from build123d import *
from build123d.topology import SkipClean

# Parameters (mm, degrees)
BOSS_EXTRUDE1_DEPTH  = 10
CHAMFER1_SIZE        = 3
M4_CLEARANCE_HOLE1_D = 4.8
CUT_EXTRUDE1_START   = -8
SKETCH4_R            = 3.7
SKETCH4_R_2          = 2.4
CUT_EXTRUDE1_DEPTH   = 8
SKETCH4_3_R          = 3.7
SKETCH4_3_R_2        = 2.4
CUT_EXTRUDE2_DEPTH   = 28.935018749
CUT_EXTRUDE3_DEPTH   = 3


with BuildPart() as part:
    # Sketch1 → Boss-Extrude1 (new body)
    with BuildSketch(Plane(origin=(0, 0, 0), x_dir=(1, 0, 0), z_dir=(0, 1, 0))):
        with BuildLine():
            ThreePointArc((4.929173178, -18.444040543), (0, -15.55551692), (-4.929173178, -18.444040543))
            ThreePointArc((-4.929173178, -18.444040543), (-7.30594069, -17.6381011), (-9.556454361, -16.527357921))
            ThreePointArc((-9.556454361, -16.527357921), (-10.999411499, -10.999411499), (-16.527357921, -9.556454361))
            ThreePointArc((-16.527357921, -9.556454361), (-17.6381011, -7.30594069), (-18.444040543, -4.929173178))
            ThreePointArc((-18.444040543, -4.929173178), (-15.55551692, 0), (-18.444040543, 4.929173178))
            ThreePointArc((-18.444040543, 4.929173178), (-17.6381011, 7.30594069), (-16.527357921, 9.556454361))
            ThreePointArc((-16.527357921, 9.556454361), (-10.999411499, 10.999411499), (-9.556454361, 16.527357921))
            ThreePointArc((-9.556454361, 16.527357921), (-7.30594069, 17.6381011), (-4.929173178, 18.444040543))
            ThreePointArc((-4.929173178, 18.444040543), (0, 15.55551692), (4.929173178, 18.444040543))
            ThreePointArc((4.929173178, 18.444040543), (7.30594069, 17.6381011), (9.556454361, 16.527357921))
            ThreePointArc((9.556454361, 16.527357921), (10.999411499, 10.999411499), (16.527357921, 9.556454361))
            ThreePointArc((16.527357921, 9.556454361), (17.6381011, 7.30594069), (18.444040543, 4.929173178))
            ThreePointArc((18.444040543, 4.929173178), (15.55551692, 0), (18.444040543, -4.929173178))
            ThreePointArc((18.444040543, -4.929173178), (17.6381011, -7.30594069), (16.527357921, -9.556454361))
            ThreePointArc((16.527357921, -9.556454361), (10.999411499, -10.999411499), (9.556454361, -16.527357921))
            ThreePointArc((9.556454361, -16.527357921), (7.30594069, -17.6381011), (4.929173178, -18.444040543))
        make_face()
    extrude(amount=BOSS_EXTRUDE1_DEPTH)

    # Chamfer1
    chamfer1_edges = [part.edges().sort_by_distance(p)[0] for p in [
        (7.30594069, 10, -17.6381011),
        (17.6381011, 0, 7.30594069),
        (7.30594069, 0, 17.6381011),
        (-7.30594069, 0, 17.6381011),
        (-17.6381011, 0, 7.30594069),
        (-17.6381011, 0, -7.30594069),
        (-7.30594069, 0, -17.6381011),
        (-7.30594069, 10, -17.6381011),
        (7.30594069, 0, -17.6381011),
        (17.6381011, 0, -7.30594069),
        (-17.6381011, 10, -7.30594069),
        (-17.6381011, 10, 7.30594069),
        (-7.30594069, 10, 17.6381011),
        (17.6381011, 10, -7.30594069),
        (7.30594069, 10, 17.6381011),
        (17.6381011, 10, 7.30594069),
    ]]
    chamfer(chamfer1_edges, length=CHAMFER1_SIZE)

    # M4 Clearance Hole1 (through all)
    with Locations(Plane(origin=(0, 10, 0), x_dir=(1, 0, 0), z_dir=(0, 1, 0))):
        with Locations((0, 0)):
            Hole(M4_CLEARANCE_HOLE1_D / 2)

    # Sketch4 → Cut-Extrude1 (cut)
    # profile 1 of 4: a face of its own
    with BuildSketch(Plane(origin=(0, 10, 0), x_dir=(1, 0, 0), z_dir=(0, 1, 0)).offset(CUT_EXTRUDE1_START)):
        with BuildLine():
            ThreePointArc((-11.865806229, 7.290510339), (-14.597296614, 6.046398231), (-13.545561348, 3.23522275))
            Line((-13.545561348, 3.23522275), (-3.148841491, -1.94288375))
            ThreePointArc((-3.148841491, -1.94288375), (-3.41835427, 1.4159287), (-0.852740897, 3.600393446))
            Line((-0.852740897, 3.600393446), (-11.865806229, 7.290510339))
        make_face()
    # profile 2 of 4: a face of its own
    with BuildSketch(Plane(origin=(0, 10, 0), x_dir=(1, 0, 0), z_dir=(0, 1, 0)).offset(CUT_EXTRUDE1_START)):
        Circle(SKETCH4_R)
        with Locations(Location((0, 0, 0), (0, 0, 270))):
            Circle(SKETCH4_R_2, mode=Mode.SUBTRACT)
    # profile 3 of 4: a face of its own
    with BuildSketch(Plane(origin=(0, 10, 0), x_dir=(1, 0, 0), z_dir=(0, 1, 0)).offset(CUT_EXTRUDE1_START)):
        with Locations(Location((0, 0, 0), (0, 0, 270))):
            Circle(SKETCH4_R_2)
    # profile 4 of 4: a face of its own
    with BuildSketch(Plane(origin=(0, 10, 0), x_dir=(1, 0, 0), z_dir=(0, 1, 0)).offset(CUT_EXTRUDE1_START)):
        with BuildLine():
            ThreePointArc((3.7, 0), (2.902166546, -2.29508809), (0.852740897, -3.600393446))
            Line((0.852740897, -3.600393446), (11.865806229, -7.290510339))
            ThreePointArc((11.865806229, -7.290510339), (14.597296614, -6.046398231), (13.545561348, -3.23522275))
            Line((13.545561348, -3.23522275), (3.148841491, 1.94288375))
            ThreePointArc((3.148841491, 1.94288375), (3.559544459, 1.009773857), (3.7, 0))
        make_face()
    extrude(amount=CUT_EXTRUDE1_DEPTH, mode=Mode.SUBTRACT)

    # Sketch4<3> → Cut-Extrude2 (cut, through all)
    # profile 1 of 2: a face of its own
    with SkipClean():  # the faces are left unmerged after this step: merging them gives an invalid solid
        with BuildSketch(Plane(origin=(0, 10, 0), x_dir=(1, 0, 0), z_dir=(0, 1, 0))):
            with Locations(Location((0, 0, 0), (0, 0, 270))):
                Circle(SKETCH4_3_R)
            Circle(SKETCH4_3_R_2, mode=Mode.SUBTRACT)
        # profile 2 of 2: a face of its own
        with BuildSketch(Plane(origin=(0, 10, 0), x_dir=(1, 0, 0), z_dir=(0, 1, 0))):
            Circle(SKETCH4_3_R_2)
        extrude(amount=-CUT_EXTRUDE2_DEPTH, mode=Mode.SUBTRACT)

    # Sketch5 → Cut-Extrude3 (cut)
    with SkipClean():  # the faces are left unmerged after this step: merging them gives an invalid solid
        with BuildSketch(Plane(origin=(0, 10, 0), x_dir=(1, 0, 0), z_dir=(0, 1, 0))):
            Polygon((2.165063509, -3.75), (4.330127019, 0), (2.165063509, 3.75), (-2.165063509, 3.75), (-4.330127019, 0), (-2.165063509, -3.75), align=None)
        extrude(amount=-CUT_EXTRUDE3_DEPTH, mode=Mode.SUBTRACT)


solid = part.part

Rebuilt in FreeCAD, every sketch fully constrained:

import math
import FreeCAD as App
import Part
import Sketcher
from FreeCAD import Vector
Q = App.Units.Quantity


def edges_at(feature, points):
    """Names of the edges that pass closest to the given points."""
    edges = feature.Shape.Edges
    near = lambda p: min(range(len(edges)), key=lambda i: edges[i].distToShape(Part.Vertex(*p))[0])
    return sorted({f"Edge{near(p) + 1}" for p in points})


def add_polygon(sketch, points):
    """Adds a closed chain of lines whose ends are joined by coincident constraints."""
    first, n = sketch.GeometryCount, len(points)
    for a, b in zip(points, points[1:] + points[:1]):
        sketch.addGeometry(Part.LineSegment(App.Vector(*a, 0), App.Vector(*b, 0)), False)
    for i in range(n):
        sketch.addConstraint(Sketcher.Constraint("Coincident", first + i, 2, first + (i + 1) % n, 1))

doc = App.newDocument("Part")
body = doc.addObject("PartDesign::Body", "Body")

sketch1 = body.newObject("Sketcher::SketchObject", "Sketch")
sketch1.AttachmentSupport = (doc.getObject("XZ_Plane"), [""])
sketch1.MapMode = "FlatFace"
sketch1.addGeometry(Part.ArcOfCircle(Part.Circle(Vector(0, 21, 0), Vector(0, 0, 1), 6), math.radians(-151), math.radians(-29)), False)
sketch1.addGeometry(Part.ArcOfCircle(Part.Circle(Vector(0, 0, 0), Vector(0, 0, 1), 19), math.radians(59.96), math.radians(75.04)), False)
sketch1.addGeometry(Part.ArcOfCircle(Part.Circle(Vector(15, 15, 0), Vector(0, 0, 1), 6), math.radians(164), math.radians(286)), False)
sketch1.addGeometry(Part.ArcOfCircle(Part.Circle(Vector(0, 0, 0), Vector(0, 0, 1), 19), math.radians(14.96), math.radians(30.04)), False)
sketch1.addGeometry(Part.ArcOfCircle(Part.Circle(Vector(21, 0, 0), Vector(0, 0, 1), 6), math.radians(119), math.radians(241)), False)
sketch1.addGeometry(Part.ArcOfCircle(Part.Circle(Vector(0, 0, 0), Vector(0, 0, 1), 19), math.radians(-30.04), math.radians(-14.96)), False)
sketch1.addGeometry(Part.ArcOfCircle(Part.Circle(Vector(15, -15, 0), Vector(0, 0, 1), 6), math.radians(74), math.radians(196)), False)
sketch1.addGeometry(Part.ArcOfCircle(Part.Circle(Vector(0, 0, 0), Vector(0, 0, 1), 19), math.radians(-75.04), math.radians(-59.96)), False)
sketch1.addGeometry(Part.ArcOfCircle(Part.Circle(Vector(0, -21, 0), Vector(0, 0, 1), 6), math.radians(29), math.radians(151)), False)
sketch1.addGeometry(Part.ArcOfCircle(Part.Circle(Vector(0, 0, 0), Vector(0, 0, 1), 19), math.radians(-120.04), math.radians(-104.96)), False)
sketch1.addGeometry(Part.ArcOfCircle(Part.Circle(Vector(-15, -15, 0), Vector(0, 0, 1), 6), math.radians(-16), math.radians(106)), False)
sketch1.addGeometry(Part.ArcOfCircle(Part.Circle(Vector(0, 0, 0), Vector(0, 0, 1), 19), math.radians(-165.04), math.radians(-149.96)), False)
sketch1.addGeometry(Part.ArcOfCircle(Part.Circle(Vector(-21, 0, 0), Vector(0, 0, 1), 6), math.radians(-61), math.radians(61)), False)
sketch1.addGeometry(Part.ArcOfCircle(Part.Circle(Vector(0, 0, 0), Vector(0, 0, 1), 19), math.radians(149.96), math.radians(165.04)), False)
sketch1.addGeometry(Part.ArcOfCircle(Part.Circle(Vector(-15, 15, 0), Vector(0, 0, 1), 6), math.radians(-106), math.radians(16)), False)
sketch1.addGeometry(Part.ArcOfCircle(Part.Circle(Vector(0, 0, 0), Vector(0, 0, 1), 19), math.radians(104.96), math.radians(120.04)), False)
sketch1.addConstraint(Sketcher.Constraint("Coincident", 0, 2, 1, 2))
sketch1.addConstraint(Sketcher.Constraint("Coincident", 1, 1, 2, 1))
sketch1.addConstraint(Sketcher.Constraint("Coincident", 2, 2, 3, 2))
sketch1.addConstraint(Sketcher.Constraint("Coincident", 3, 1, 4, 1))
sketch1.addConstraint(Sketcher.Constraint("Coincident", 4, 2, 5, 2))
sketch1.addConstraint(Sketcher.Constraint("Coincident", 5, 1, 6, 1))
sketch1.addConstraint(Sketcher.Constraint("Coincident", 6, 2, 7, 2))
sketch1.addConstraint(Sketcher.Constraint("Coincident", 7, 1, 8, 1))
sketch1.addConstraint(Sketcher.Constraint("Coincident", 8, 2, 9, 2))
sketch1.addConstraint(Sketcher.Constraint("Coincident", 9, 1, 10, 1))
sketch1.addConstraint(Sketcher.Constraint("Coincident", 10, 2, 11, 2))
sketch1.addConstraint(Sketcher.Constraint("Coincident", 11, 1, 12, 1))
sketch1.addConstraint(Sketcher.Constraint("Coincident", 12, 2, 13, 2))
sketch1.addConstraint(Sketcher.Constraint("Coincident", 13, 1, 14, 1))
sketch1.addConstraint(Sketcher.Constraint("Coincident", 14, 2, 15, 2))
sketch1.addConstraint(Sketcher.Constraint("Coincident", 15, 1, 0, 1))
sketch1.addConstraint(Sketcher.Constraint("Coincident", 1, 3, -1, 1))
sketch1.addConstraint(Sketcher.Constraint("Coincident", 3, 3, -1, 1))
sketch1.addConstraint(Sketcher.Constraint("Coincident", 5, 3, -1, 1))
sketch1.addConstraint(Sketcher.Constraint("Coincident", 7, 3, -1, 1))
sketch1.addConstraint(Sketcher.Constraint("Coincident", 9, 3, -1, 1))
sketch1.addConstraint(Sketcher.Constraint("Coincident", 11, 3, -1, 1))
sketch1.addConstraint(Sketcher.Constraint("Coincident", 13, 3, -1, 1))
sketch1.addConstraint(Sketcher.Constraint("Coincident", 15, 3, -1, 1))
sketch1.addConstraint(Sketcher.Constraint("Equal", 0, 2))
sketch1.addConstraint(Sketcher.Constraint("Equal", 1, 3))
sketch1.addConstraint(Sketcher.Constraint("Equal", 2, 4))
sketch1.addConstraint(Sketcher.Constraint("Equal", 3, 5))
sketch1.addConstraint(Sketcher.Constraint("Equal", 4, 6))
sketch1.addConstraint(Sketcher.Constraint("Equal", 5, 7))
sketch1.addConstraint(Sketcher.Constraint("Equal", 6, 8))
sketch1.addConstraint(Sketcher.Constraint("Equal", 7, 9))
sketch1.addConstraint(Sketcher.Constraint("Equal", 8, 10))
sketch1.addConstraint(Sketcher.Constraint("Equal", 9, 11))
sketch1.addConstraint(Sketcher.Constraint("Equal", 10, 12))
sketch1.addConstraint(Sketcher.Constraint("Equal", 11, 13))
sketch1.addConstraint(Sketcher.Constraint("Equal", 12, 14))
sketch1.addConstraint(Sketcher.Constraint("Equal", 13, 15))
sketch1.addConstraint(Sketcher.Constraint("Symmetric", 0, 3, 8, 3, -1, 1))
sketch1.addConstraint(Sketcher.Constraint("Symmetric", 2, 3, 10, 3, -1, 1))
sketch1.addConstraint(Sketcher.Constraint("Symmetric", 4, 3, 12, 3, -1, 1))
sketch1.addConstraint(Sketcher.Constraint("Symmetric", 6, 3, 14, 3, -1, 1))
sketch1.addConstraint(Sketcher.Constraint("Symmetric", 6, 3, 10, 3, -2))
sketch1.addConstraint(Sketcher.Constraint("PointOnObject", 0, 3, -2))
sketch1.addConstraint(Sketcher.Constraint("PointOnObject", 4, 3, -1))
sketch1.addConstraint(Sketcher.Constraint("Radius", 0, Q("5.65 mm")))
sketch1.addConstraint(Sketcher.Constraint("Radius", 1, Q("19.091343 mm")))
sketch1.addConstraint(Sketcher.Constraint("DistanceY", -1, 1, 0, 2, Q("18.444041 mm")))
sketch1.addConstraint(Sketcher.Constraint("DistanceX", -1, 1, 3, 1, Q("18.444041 mm")))
sketch1.addConstraint(Sketcher.Constraint("DistanceY", 6, 3, 2, 3, Q("29.98913 mm")))
sketch1.addConstraint(Sketcher.Constraint("DistanceX", 0, 2, 2, 3, Q("10.065392 mm")))
pad1 = body.newObject("PartDesign::Pad", "Pad")
pad1.Profile = sketch1
pad1.Length = 10
pad1.Reversed = True
doc.recompute()

chamfer = body.newObject("PartDesign::Chamfer", "Chamfer")
chamfer.Base = (pad1, edges_at(pad1, [
    (7.306, 10, -17.638),
    (17.638, 0, 7.306),
    (7.306, 0, 17.638),
    (-7.306, 0, 17.638),
    (-17.638, 0, 7.306),
    (-17.638, 0, -7.306),
    (-7.306, 0, -17.638),
    (-7.306, 10, -17.638),
    (7.306, 0, -17.638),
    (17.638, 0, -7.306),
    (-17.638, 10, -7.306),
    (-17.638, 10, 7.306),
    (-7.306, 10, 17.638),
    (17.638, 10, -7.306),
    (7.306, 10, 17.638),
    (17.638, 10, 7.306),
]))
chamfer.Size = 3

sketch2 = body.newObject("Sketcher::SketchObject", "Sketch001")
sketch2.AttachmentSupport = (doc.getObject("XZ_Plane"), [""])
sketch2.MapMode = "FlatFace"
sketch2.AttachmentOffset = App.Placement(Vector(0, 0, -10), App.Rotation())
sketch2.addGeometry(Part.Circle(Vector(0, 0, 0), Vector(0, 0, 1), 2.4), False)
sketch2.addConstraint(Sketcher.Constraint("Coincident", 0, 3, -1, 1))
sketch2.addConstraint(Sketcher.Constraint("Diameter", 0, Q("4.8 mm")))
doc.recompute()
hole = body.newObject("PartDesign::Hole", "Hole")
hole.Profile = sketch2
hole.ThreadType = "None"
hole.Diameter = 4.8
hole.DepthType = "ThroughAll"
hole.Reversed = True

sketch3 = body.newObject("Sketcher::SketchObject", "Sketch002")
sketch3.AttachmentSupport = (doc.getObject("XZ_Plane"), [""])
sketch3.MapMode = "FlatFace"
sketch3.AttachmentOffset = App.Placement(Vector(0, 0, -2), App.Rotation())
sketch3.addGeometry(Part.ArcOfCircle(Part.Circle(Vector(-12.6, -5.2, 0), Vector(0, 0, 1), 2.2), math.radians(116), math.radians(289)), False)
sketch3.addGeometry(Part.LineSegment(Vector(-13.5, -3.2, 0), Vector(-3.1, 1.9, 0)), False)
sketch3.addGeometry(Part.ArcOfCircle(Part.Circle(Vector(0, 0, 0), Vector(0, 0, 1), 3.7), math.radians(77), math.radians(148)), False)
sketch3.addGeometry(Part.LineSegment(Vector(0.9, 3.6, 0), Vector(11.9, 7.3, 0)), False)
sketch3.addGeometry(Part.ArcOfCircle(Part.Circle(Vector(12.6, 5.2, 0), Vector(0, 0, 1), 2.2), math.radians(-64), math.radians(109)), False)
sketch3.addGeometry(Part.LineSegment(Vector(13.5, 3.2, 0), Vector(3.1, -1.9, 0)), False)
sketch3.addGeometry(Part.ArcOfCircle(Part.Circle(Vector(0, 0, 0), Vector(0, 0, 1), 3.7), math.radians(-103), math.radians(-32)), False)
sketch3.addGeometry(Part.LineSegment(Vector(-0.9, -3.6, 0), Vector(-11.9, -7.3, 0)), False)
sketch3.addConstraint(Sketcher.Constraint("Tangent", 0, 1, 1, 1))
sketch3.addConstraint(Sketcher.Constraint("Coincident", 1, 2, 2, 2))
sketch3.addConstraint(Sketcher.Constraint("Coincident", 2, 1, 3, 1))
sketch3.addConstraint(Sketcher.Constraint("Tangent", 3, 2, 4, 2))
sketch3.addConstraint(Sketcher.Constraint("Tangent", 4, 1, 5, 1))
sketch3.addConstraint(Sketcher.Constraint("Coincident", 5, 2, 6, 2))
sketch3.addConstraint(Sketcher.Constraint("Coincident", 6, 1, 7, 1))
sketch3.addConstraint(Sketcher.Constraint("Tangent", 7, 2, 0, 2))
sketch3.addConstraint(Sketcher.Constraint("Coincident", 2, 3, -1, 1))
sketch3.addConstraint(Sketcher.Constraint("Coincident", 6, 3, -1, 1))
sketch3.addConstraint(Sketcher.Constraint("Equal", 0, 4))
sketch3.addConstraint(Sketcher.Constraint("Equal", 2, 6))
sketch3.addConstraint(Sketcher.Constraint("Symmetric", 0, 3, 4, 3, -1, 1))
sketch3.addConstraint(Sketcher.Constraint("Parallel", 1, 5))
sketch3.addConstraint(Sketcher.Constraint("Parallel", 3, 7))
sketch3.addConstraint(Sketcher.Constraint("Equal", 1, 3))
sketch3.addConstraint(Sketcher.Constraint("Radius", 0, Q("2.2 mm")))
sketch3.addConstraint(Sketcher.Constraint("Radius", 2, Q("3.7 mm")))
sketch3.addConstraint(Sketcher.Constraint("DistanceX", 0, 1, 0, 3, Q("0.9808 mm")))
sketch3.addConstraint(Sketcher.Constraint("DistanceY", 2, 1, 4, 3, Q("1.604101 mm")))
sketch3.addConstraint(Sketcher.Constraint("DistanceX", 2, 1, 5, 2, Q("2.296101 mm")))
pocket1 = body.newObject("PartDesign::Pocket", "Pocket")
pocket1.Profile = sketch3
pocket1.Length = 8

sketch4 = body.newObject("Sketcher::SketchObject", "Sketch003")
sketch4.AttachmentSupport = (doc.getObject("XZ_Plane"), [""])
sketch4.MapMode = "FlatFace"
sketch4.AttachmentOffset = App.Placement(Vector(0, 0, -10), App.Rotation())
sketch4.addGeometry(Part.Circle(Vector(0, 0, 0), Vector(0, 0, 1), 3.7), False)
sketch4.addConstraint(Sketcher.Constraint("Coincident", 0, 3, -1, 1))
sketch4.addConstraint(Sketcher.Constraint("Diameter", 0, Q("7.4 mm")))
pocket2 = body.newObject("PartDesign::Pocket", "Pocket001")
pocket2.Profile = sketch4
pocket2.Length = 28.935019
pocket2.Reversed = True

sketch5 = body.newObject("Sketcher::SketchObject", "Sketch004")
sketch5.AttachmentSupport = (doc.getObject("XZ_Plane"), [""])
sketch5.MapMode = "FlatFace"
sketch5.AttachmentOffset = App.Placement(Vector(0, 0, -10), App.Rotation())
add_polygon(sketch5, [(2.2, 3.8), (4.3, 0), (2.2, -3.8), (-2.2, -3.8), (-4.3, 0), (-2.2, 3.8)])
sketch5.addConstraint(Sketcher.Constraint("Horizontal", 2))
sketch5.addConstraint(Sketcher.Constraint("Horizontal", 5))
sketch5.addConstraint(Sketcher.Constraint("Symmetric", 0, 2, 3, 2, -1, 1))
sketch5.addConstraint(Sketcher.Constraint("Symmetric", 1, 2, 4, 2, -1, 1))
sketch5.addConstraint(Sketcher.Constraint("PointOnObject", 0, 2, -1))
sketch5.addConstraint(Sketcher.Constraint("Parallel", 0, 3))
sketch5.addConstraint(Sketcher.Constraint("Vertical", 2, 2, 4, 2))
sketch5.addConstraint(Sketcher.Constraint("Angle", 0, Q("-60 deg")))
sketch5.addConstraint(Sketcher.Constraint("DistanceY", 2, 2, 4, 2, Q("7.5 mm")))
sketch5.addConstraint(Sketcher.Constraint("DistanceX", 2, 2, 2, 1, Q("4.330127 mm")))
pocket3 = body.newObject("PartDesign::Pocket", "Pocket002")
pocket3.Profile = sketch5
pocket3.Length = 3
pocket3.Reversed = True

doc.recompute()
